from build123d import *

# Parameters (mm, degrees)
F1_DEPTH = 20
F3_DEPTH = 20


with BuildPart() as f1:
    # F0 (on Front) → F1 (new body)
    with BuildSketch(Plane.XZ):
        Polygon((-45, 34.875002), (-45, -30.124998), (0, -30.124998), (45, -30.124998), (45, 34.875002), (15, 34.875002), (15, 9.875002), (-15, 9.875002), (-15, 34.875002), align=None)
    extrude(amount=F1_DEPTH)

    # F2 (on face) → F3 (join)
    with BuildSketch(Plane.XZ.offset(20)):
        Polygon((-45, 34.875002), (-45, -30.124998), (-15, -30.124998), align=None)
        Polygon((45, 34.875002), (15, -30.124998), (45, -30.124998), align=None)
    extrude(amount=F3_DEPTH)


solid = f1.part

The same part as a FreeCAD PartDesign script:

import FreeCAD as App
import Part
import Sketcher
from FreeCAD import Vector
Q = App.Units.Quantity


def add_polygon(sketch, points):
    """Adds a closed chain of lines whose ends are joined by coincident constraints."""
    first, n = sketch.GeometryCount, len(points)
    for a, b in zip(points, points[1:] + points[:1]):
        sketch.addGeometry(Part.LineSegment(App.Vector(*a, 0), App.Vector(*b, 0)), False)
    for i in range(n):
        sketch.addConstraint(Sketcher.Constraint("Coincident", first + i, 2, first + (i + 1) % n, 1))

doc = App.newDocument("Part")
body = doc.addObject("PartDesign::Body", "Body")

sketch1 = body.newObject("Sketcher::SketchObject", "Sketch")
sketch1.AttachmentSupport = (doc.getObject("XZ_Plane"), [""])
sketch1.MapMode = "FlatFace"
add_polygon(sketch1, [(-45, 35), (-45, -30), (45, -30), (45, 35), (15, 35), (15, 10), (-15, 10), (-15, 35)])
sketch1.addConstraint([
    Sketcher.Constraint("Vertical", 0),
    Sketcher.Constraint("Horizontal", 1),
    Sketcher.Constraint("Vertical", 2),
    Sketcher.Constraint("Horizontal", 3),
    Sketcher.Constraint("Vertical", 4),
    Sketcher.Constraint("Horizontal", 5),
    Sketcher.Constraint("Vertical", 6),
    Sketcher.Constraint("Horizontal", 7),
    Sketcher.Constraint("Symmetric", 3, 2, 6, 2, -2),
    Sketcher.Constraint("Equal", 3, 5),
    Sketcher.Constraint("Equal", 5, 7),
    Sketcher.Constraint("DistanceX", 1, 1, 1, 2, Q("90 mm")),
    Sketcher.Constraint("DistanceY", 0, 2, 0, 1, Q("65 mm")),
    Sketcher.Constraint("DistanceY", 4, 2, 4, 1, Q("25 mm")),
    Sketcher.Constraint("DistanceY", 0, 2, -1, 1, Q("30.124998 mm")),
])
pad1 = body.newObject("PartDesign::Pad", "Pad")
pad1.Profile = sketch1
pad1.Length = 20

sketch2 = body.newObject("Sketcher::SketchObject", "Sketch001")
sketch2.AttachmentSupport = (doc.getObject("XZ_Plane"), [""])
sketch2.MapMode = "FlatFace"
sketch2.AttachmentOffset = App.Placement(Vector(0, 0, 20), App.Rotation())
add_polygon(sketch2, [(-45, 35), (-45, -30), (-15, -30)])
add_polygon(sketch2, [(45, 35), (15, -30), (45, -30)])
sketch2.addConstraint([
    Sketcher.Constraint("Vertical", 0),
    Sketcher.Constraint("Horizontal", 1),
    Sketcher.Constraint("Horizontal", 4),
    Sketcher.Constraint("Vertical", 5),
    Sketcher.Constraint("Symmetric", 1, 2, 3, 2, -2),
    Sketcher.Constraint("Symmetric", 2, 2, 5, 2, -2),
    Sketcher.Constraint("DistanceX", 1, 1, 1, 2, Q("30 mm")),
    Sketcher.Constraint("DistanceY", 0, 2, 0, 1, Q("65 mm")),
    Sketcher.Constraint("DistanceX", 0, 2, -1, 1, Q("45 mm")),
    Sketcher.Constraint("DistanceY", 0, 2, -1, 1, Q("30.124998 mm")),
])
pad2 = body.newObject("PartDesign::Pad", "Pad001")
pad2.Profile = sketch2
pad2.Length = 20

doc.recompute()
